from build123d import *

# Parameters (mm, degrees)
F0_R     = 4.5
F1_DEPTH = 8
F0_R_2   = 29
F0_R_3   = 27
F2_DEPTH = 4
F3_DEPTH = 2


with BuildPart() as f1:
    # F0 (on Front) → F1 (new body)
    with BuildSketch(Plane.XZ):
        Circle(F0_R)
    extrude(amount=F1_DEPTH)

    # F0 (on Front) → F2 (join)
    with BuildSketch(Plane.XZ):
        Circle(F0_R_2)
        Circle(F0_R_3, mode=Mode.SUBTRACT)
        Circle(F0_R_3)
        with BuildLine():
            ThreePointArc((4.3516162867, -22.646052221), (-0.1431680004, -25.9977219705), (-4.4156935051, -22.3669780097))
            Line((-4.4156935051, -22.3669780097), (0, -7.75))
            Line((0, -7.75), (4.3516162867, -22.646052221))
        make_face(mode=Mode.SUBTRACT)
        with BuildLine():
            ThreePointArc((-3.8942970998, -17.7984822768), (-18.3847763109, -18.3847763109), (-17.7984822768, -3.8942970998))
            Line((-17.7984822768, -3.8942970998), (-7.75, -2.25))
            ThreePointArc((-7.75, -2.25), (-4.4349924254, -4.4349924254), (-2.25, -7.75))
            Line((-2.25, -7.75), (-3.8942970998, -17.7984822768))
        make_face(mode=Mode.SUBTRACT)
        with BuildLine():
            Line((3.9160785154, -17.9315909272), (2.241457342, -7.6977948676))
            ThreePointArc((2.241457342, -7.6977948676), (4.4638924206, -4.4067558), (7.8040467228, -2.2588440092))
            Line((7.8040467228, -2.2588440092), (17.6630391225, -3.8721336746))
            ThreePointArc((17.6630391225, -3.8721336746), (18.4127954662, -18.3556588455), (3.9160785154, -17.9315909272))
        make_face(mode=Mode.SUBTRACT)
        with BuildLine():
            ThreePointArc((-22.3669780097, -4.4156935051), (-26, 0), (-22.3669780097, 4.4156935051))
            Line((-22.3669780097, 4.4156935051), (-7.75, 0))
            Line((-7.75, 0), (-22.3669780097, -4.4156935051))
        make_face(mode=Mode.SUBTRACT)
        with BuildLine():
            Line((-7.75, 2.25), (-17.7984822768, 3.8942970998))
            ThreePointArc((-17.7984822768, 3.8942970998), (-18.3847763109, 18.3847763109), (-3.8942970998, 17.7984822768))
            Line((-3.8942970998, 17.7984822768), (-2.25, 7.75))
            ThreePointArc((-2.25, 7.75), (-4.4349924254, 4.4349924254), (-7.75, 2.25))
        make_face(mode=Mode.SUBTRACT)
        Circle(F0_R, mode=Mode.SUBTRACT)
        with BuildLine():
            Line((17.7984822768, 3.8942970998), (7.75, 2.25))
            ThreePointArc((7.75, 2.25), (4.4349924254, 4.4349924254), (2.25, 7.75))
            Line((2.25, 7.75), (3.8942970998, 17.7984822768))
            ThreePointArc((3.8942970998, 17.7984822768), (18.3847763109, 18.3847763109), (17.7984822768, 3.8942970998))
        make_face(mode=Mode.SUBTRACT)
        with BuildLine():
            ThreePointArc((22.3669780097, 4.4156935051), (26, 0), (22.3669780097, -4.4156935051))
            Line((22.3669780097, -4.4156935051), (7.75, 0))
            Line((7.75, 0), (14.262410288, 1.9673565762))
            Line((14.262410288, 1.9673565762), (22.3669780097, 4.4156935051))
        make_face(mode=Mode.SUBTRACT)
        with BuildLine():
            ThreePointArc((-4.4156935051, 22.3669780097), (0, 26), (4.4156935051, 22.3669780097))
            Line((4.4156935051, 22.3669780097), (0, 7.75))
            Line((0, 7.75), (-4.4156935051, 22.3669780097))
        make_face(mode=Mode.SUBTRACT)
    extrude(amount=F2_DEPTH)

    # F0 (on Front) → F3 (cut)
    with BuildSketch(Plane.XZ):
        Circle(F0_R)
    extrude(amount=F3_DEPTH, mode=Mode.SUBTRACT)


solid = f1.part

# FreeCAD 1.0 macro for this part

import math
import FreeCAD as App
import Part
import Sketcher
Q = App.Units.Quantity

doc = App.newDocument("Part")
body = doc.addObject("PartDesign::Body", "Body")

sketch1 = body.newObject("Sketcher::SketchObject", "Sketch")
sketch1.AttachmentSupport = (doc.getObject("XZ_Plane"), [""])
sketch1.MapMode = "FlatFace"
sketch1.addGeometry(Part.Circle(App.Vector(0, 0, 0), App.Vector(0, 0, 1), 4.5), False)
sketch1.addConstraint(Sketcher.Constraint("Coincident", 0, 3, -1, 1))
sketch1.addConstraint(Sketcher.Constraint("Diameter", 0, Q("9 mm")))
pad1 = body.newObject("PartDesign::Pad", "Pad")
pad1.Profile = sketch1
pad1.Length = 8

sketch2 = body.newObject("Sketcher::SketchObject", "Sketch001")
sketch2.AttachmentSupport = (doc.getObject("XZ_Plane"), [""])
sketch2.MapMode = "FlatFace"
sketch2.addGeometry(Part.Circle(App.Vector(0, 0, 0), App.Vector(0, 0, 1), 29), False)
sketch2.addGeometry(Part.LineSegment(App.Vector(0, -7.8, 0), App.Vector(4.4, -22.6, 0)), False)
sketch2.addGeometry(Part.ArcOfCircle(Part.Circle(App.Vector(0, -21.5, 0), App.Vector(0, 0, 1), 4.5), math.radians(-169), math.radians(-15)), False)
sketch2.addGeometry(Part.LineSegment(App.Vector(-4.4, -22.4, 0), App.Vector(0, -7.8, 0)), False)
sketch2.addGeometry(Part.LineSegment(App.Vector(-2.2, -7.8, 0), App.Vector(-3.9, -17.8, 0)), False)
sketch2.addGeometry(Part.ArcOfCircle(Part.Circle(App.Vector(-11.4, -11.4, 0), App.Vector(0, 0, 1), 9.9), math.radians(130), math.radians(320)), False)
sketch2.addGeometry(Part.LineSegment(App.Vector(-17.8, -3.9, 0), App.Vector(-7.8, -2.2, 0)), False)
sketch2.addGeometry(Part.ArcOfCircle(Part.Circle(App.Vector(-11.4, -11.4, 0), App.Vector(0, 0, 1), 9.9), math.radians(22), math.radians(68)), False)
sketch2.addGeometry(Part.ArcOfCircle(Part.Circle(App.Vector(11.4, -11.5, 0), App.Vector(0, 0, 1), 9.9), math.radians(-139), math.radians(50)), False)
sketch2.addGeometry(Part.LineSegment(App.Vector(3.9, -17.9, 0), App.Vector(2.2, -7.7, 0)), False)
sketch2.addGeometry(Part.ArcOfCircle(Part.Circle(App.Vector(11.4, -11.5, 0), App.Vector(0, 0, 1), 9.9), math.radians(111), math.radians(158)), False)
sketch2.addGeometry(Part.LineSegment(App.Vector(7.8, -2.3, 0), App.Vector(17.7, -3.9, 0)), False)
sketch2.addGeometry(Part.LineSegment(App.Vector(-7.8, 0, 0), App.Vector(-22.4, -4.4, 0)), False)
sketch2.addGeometry(Part.ArcOfCircle(Part.Circle(App.Vector(-21.5, 0, 0), App.Vector(0, 0, 1), 4.5), math.radians(101), math.radians(259)), False)
sketch2.addGeometry(Part.LineSegment(App.Vector(-22.4, 4.4, 0), App.Vector(-7.8, 0, 0)), False)
sketch2.addGeometry(Part.ArcOfCircle(Part.Circle(App.Vector(-11.4, 11.4, 0), App.Vector(0, 0, 1), 9.9), math.radians(-68), math.radians(-22)), False)
sketch2.addGeometry(Part.LineSegment(App.Vector(-7.8, 2.2, 0), App.Vector(-17.8, 3.9, 0)), False)
sketch2.addGeometry(Part.ArcOfCircle(Part.Circle(App.Vector(-11.4, 11.4, 0), App.Vector(0, 0, 1), 9.9), math.radians(40), math.radians(230)), False)
sketch2.addGeometry(Part.LineSegment(App.Vector(-3.9, 17.8, 0), App.Vector(-2.2, 7.8, 0)), False)
sketch2.addGeometry(Part.Circle(App.Vector(0, 0, 0), App.Vector(0, 0, 1), 4.5), False)
sketch2.addGeometry(Part.ArcOfCircle(Part.Circle(App.Vector(11.4, 11.4, 0), App.Vector(0, 0, 1), 9.9), math.radians(-50), math.radians(140)), False)
sketch2.addGeometry(Part.LineSegment(App.Vector(17.8, 3.9, 0), App.Vector(7.8, 2.2, 0)), False)
sketch2.addGeometry(Part.ArcOfCircle(Part.Circle(App.Vector(11.4, 11.4, 0), App.Vector(0, 0, 1), 9.9), math.radians(-158), math.radians(-112)), False)
sketch2.addGeometry(Part.LineSegment(App.Vector(2.2, 7.8, 0), App.Vector(3.9, 17.8, 0)), False)
sketch2.addGeometry(Part.LineSegment(App.Vector(14.3, 2, 0), App.Vector(22.4, 4.4, 0)), False)
sketch2.addGeometry(Part.ArcOfCircle(Part.Circle(App.Vector(21.5, 0, 0), App.Vector(0, 0, 1), 4.5), math.radians(-79), math.radians(79)), False)
sketch2.addGeometry(Part.LineSegment(App.Vector(22.4, -4.4, 0), App.Vector(7.8, 0, 0)), False)
sketch2.addGeometry(Part.LineSegment(App.Vector(7.8, 0, 0), App.Vector(14.3, 2, 0)), False)
sketch2.addGeometry(Part.LineSegment(App.Vector(0, 7.8, 0), App.Vector(-4.4, 22.4, 0)), False)
sketch2.addGeometry(Part.ArcOfCircle(Part.Circle(App.Vector(0, 21.5, 0), App.Vector(0, 0, 1), 4.5), math.radians(11), math.radians(169)), False)
sketch2.addGeometry(Part.LineSegment(App.Vector(4.4, 22.4, 0), App.Vector(0, 7.8, 0)), False)
sketch2.addConstraint(Sketcher.Constraint("Coincident", 1, 2, 2, 2))
sketch2.addConstraint(Sketcher.Constraint("Coincident", 2, 1, 3, 1))
sketch2.addConstraint(Sketcher.Constraint("Coincident", 3, 2, 1, 1))
sketch2.addConstraint(Sketcher.Constraint("Coincident", 4, 2, 5, 2))
sketch2.addConstraint(Sketcher.Constraint("Coincident", 5, 1, 6, 1))
sketch2.addConstraint(Sketcher.Constraint("Coincident", 6, 2, 7, 2))
sketch2.addConstraint(Sketcher.Constraint("Coincident", 7, 1, 4, 1))
sketch2.addConstraint(Sketcher.Constraint("Coincident", 8, 1, 9, 1))
sketch2.addConstraint(Sketcher.Constraint("Coincident", 9, 2, 10, 2))
sketch2.addConstraint(Sketcher.Constraint("Coincident", 10, 1, 11, 1))
sketch2.addConstraint(Sketcher.Constraint("Coincident", 11, 2, 8, 2))
sketch2.addConstraint(Sketcher.Constraint("Coincident", 12, 2, 13, 2))
sketch2.addConstraint(Sketcher.Constraint("Coincident", 13, 1, 14, 1))
sketch2.addConstraint(Sketcher.Constraint("Coincident", 14, 2, 12, 1))
sketch2.addConstraint(Sketcher.Constraint("Coincident", 15, 1, 16, 1))
sketch2.addConstraint(Sketcher.Constraint("Coincident", 16, 2, 17, 2))
sketch2.addConstraint(Sketcher.Constraint("Coincident", 17, 1, 18, 1))
sketch2.addConstraint(Sketcher.Constraint("Coincident", 18, 2, 15, 2))
sketch2.addConstraint(Sketcher.Constraint("Coincident", 20, 1, 21, 1))
sketch2.addConstraint(Sketcher.Constraint("Coincident", 21, 2, 22, 2))
sketch2.addConstraint(Sketcher.Constraint("Coincident", 22, 1, 23, 1))
sketch2.addConstraint(Sketcher.Constraint("Coincident", 23, 2, 20, 2))
sketch2.addConstraint(Sketcher.Constraint("Coincident", 24, 2, 25, 2))
sketch2.addConstraint(Sketcher.Constraint("Coincident", 25, 1, 26, 1))
sketch2.addConstraint(Sketcher.Constraint("Coincident", 26, 2, 27, 1))
sketch2.addConstraint(Sketcher.Constraint("Coincident", 27, 2, 24, 1))
sketch2.addConstraint(Sketcher.Constraint("Coincident", 28, 2, 29, 2))
sketch2.addConstraint(Sketcher.Constraint("Coincident", 29, 1, 30, 1))
sketch2.addConstraint(Sketcher.Constraint("Coincident", 30, 2, 28, 1))
sketch2.addConstraint(Sketcher.Constraint("Coincident", 0, 3, -1, 1))
sketch2.addConstraint(Sketcher.Constraint("Coincident", 19, 3, -1, 1))
sketch2.addConstraint(Sketcher.Constraint("Coincident", 7, 3, 5, 3))
sketch2.addConstraint(Sketcher.Constraint("Coincident", 10, 3, 8, 3))
sketch2.addConstraint(Sketcher.Constraint("Coincident", 17, 3, 15, 3))
sketch2.addConstraint(Sketcher.Constraint("Coincident", 22, 3, 20, 3))
sketch2.addConstraint(Sketcher.Constraint("Equal", 5, 7))
sketch2.addConstraint(Sketcher.Constraint("Equal", 7, 8))
sketch2.addConstraint(Sketcher.Constraint("Equal", 8, 10))
sketch2.addConstraint(Sketcher.Constraint("Equal", 2, 13))
sketch2.addConstraint(Sketcher.Constraint("Equal", 10, 15))
sketch2.addConstraint(Sketcher.Constraint("Equal", 15, 17))
sketch2.addConstraint(Sketcher.Constraint("Equal", 13, 19))
sketch2.addConstraint(Sketcher.Constraint("Equal", 17, 20))
sketch2.addConstraint(Sketcher.Constraint("Equal", 20, 22))
sketch2.addConstraint(Sketcher.Constraint("Equal", 19, 25))
sketch2.addConstraint(Sketcher.Constraint("Equal", 25, 29))
sketch2.addConstraint(Sketcher.Constraint("Symmetric", 5, 3, 20, 3, -1, 1))
sketch2.addConstraint(Sketcher.Constraint("Symmetric", 13, 3, 25, 3, -1, 1))
sketch2.addConstraint(Sketcher.Constraint("Symmetric", 2, 3, 29, 3, -1, 1))
sketch2.addConstraint(Sketcher.Constraint("Symmetric", 14, 2, 26, 2, -1, 1))
sketch2.addConstraint(Sketcher.Constraint("Symmetric", 3, 2, 30, 2, -1, 1))
sketch2.addConstraint(Sketcher.Constraint("Symmetric", 15, 3, 20, 3, -2))
sketch2.addConstraint(Sketcher.Constraint("Symmetric", 13, 1, 24, 2, -2))
sketch2.addConstraint(Sketcher.Constraint("Symmetric", 28, 2, 29, 1, -2))
sketch2.addConstraint(Sketcher.Constraint("PointOnObject", 3, 2, -2))
sketch2.addConstraint(Sketcher.Constraint("PointOnObject", 14, 2, -1))
sketch2.addConstraint(Sketcher.Constraint("Perpendicular", 6, 9))
sketch2.addConstraint(Sketcher.Constraint("Perpendicular", 4, 11))
sketch2.addConstraint(Sketcher.Constraint("Perpendicular", 3, 14))
sketch2.addConstraint(Sketcher.Constraint("Parallel", 11, 16))
sketch2.addConstraint(Sketcher.Constraint("Parallel", 9, 18))
sketch2.addConstraint(Sketcher.Constraint("Perpendicular", 18, 21))
sketch2.addConstraint(Sketcher.Constraint("Perpendicular", 16, 23))
sketch2.addConstraint(Sketcher.Constraint("Parallel", 12, 24))
sketch2.addConstraint(Sketcher.Constraint("Parallel", 14, 26))
sketch2.addConstraint(Sketcher.Constraint("Parallel", 24, 27))
sketch2.addConstraint(Sketcher.Constraint("Perpendicular", 27, 28))
sketch2.addConstraint(Sketcher.Constraint("Horizontal", 3, 2, 7, 1))
sketch2.addConstraint(Sketcher.Constraint("Horizontal", 16, 2, 20, 1))
sketch2.addConstraint(Sketcher.Constraint("Horizontal", 15, 1, 21, 2))
sketch2.addConstraint(Sketcher.Constraint("Horizontal", 18, 2, 22, 1))
sketch2.addConstraint(Sketcher.Constraint("Horizontal", 22, 1, 30, 2))
sketch2.addConstraint(Sketcher.Constraint("Vertical", 6, 2, 14, 2))
sketch2.addConstraint(Sketcher.Constraint("Vertical", 14, 2, 15, 1))
sketch2.addConstraint(Sketcher.Constraint("Equal", 4, 6))
sketch2.addConstraint(Sketcher.Constraint("Equal", 3, 12))
sketch2.addConstraint(Sketcher.Constraint("Diameter", 0, Q("58 mm")))
sketch2.addConstraint(Sketcher.Constraint("Diameter", 19, Q("9 mm")))
sketch2.addConstraint(Sketcher.Constraint("DistanceY", 2, 3, -1, 1, Q("21.5 mm")))
sketch2.addConstraint(Sketcher.Constraint("DistanceX", 13, 3, -1, 1, Q("21.5 mm")))
sketch2.addConstraint(Sketcher.Constraint("DistanceY", 3, 2, 6, 2, Q("5.5 mm")))
sketch2.addConstraint(Sketcher.Constraint("DistanceY", 6, 2, 15, 1, Q("4.5 mm")))
sketch2.addConstraint(Sketcher.Constraint("Radius", 5, Q("9.863987 mm")))
sketch2.addConstraint(Sketcher.Constraint("DistanceX", 5, 3, 1, 2, Q("15.761501 mm")))
sketch2.addConstraint(Sketcher.Constraint("Distance", 24, Q("8.466308 mm")))
sketch2.addConstraint(Sketcher.Constraint("DistanceY", 8, 3, -1, 1, Q("11.459588 mm")))
sketch2.addConstraint(Sketcher.Constraint("DistanceY", 2, 1, -1, 1, Q("22.366978 mm")))
sketch2.addConstraint(Sketcher.Constraint("DistanceX", -1, 1, 8, 1, Q("3.916079 mm")))
sketch2.addConstraint(Sketcher.Constraint("DistanceY", 8, 1, -1, 1, Q("17.931591 mm")))
sketch2.addConstraint(Sketcher.Constraint("DistanceX", -1, 1, 11, 2, Q("17.663039 mm")))
sketch2.addConstraint(Sketcher.Constraint("DistanceY", 1, 2, 4, 2, Q("4.84757 mm")))
pad2 = body.newObject("PartDesign::Pad", "Pad001")
pad2.Profile = sketch2
pad2.Length = 4

sketch3 = body.newObject("Sketcher::SketchObject", "Sketch002")
sketch3.AttachmentSupport = (doc.getObject("XZ_Plane"), [""])
sketch3.MapMode = "FlatFace"
sketch3.addGeometry(Part.Circle(App.Vector(0, 0, 0), App.Vector(0, 0, 1), 4.5), False)
sketch3.addConstraint(Sketcher.Constraint("Coincident", 0, 3, -1, 1))
sketch3.addConstraint(Sketcher.Constraint("Diameter", 0, Q("9 mm")))
pocket1 = body.newObject("PartDesign::Pocket", "Pocket")
pocket1.Profile = sketch3
pocket1.Length = 2
pocket1.Reversed = True

doc.recompute()
